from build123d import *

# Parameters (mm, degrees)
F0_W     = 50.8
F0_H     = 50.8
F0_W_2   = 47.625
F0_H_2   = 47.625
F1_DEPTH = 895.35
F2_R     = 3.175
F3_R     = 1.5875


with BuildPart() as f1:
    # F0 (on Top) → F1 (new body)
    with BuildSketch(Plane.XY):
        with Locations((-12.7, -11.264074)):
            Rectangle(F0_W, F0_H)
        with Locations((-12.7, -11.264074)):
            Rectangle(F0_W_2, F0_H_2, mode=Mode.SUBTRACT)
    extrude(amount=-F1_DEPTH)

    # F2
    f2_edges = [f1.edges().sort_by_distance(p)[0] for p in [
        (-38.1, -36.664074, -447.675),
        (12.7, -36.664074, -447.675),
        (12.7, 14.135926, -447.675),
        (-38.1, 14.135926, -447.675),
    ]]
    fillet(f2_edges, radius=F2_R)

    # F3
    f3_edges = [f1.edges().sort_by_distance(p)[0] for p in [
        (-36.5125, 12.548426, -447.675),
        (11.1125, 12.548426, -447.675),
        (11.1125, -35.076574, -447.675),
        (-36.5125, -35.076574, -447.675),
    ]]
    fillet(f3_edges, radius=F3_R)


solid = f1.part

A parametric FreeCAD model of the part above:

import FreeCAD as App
import Part
import Sketcher
from FreeCAD import Vector
Q = App.Units.Quantity


def edges_at(feature, points):
    """Names of the edges that pass closest to the given points."""
    edges = feature.Shape.Edges
    near = lambda p: min(range(len(edges)), key=lambda i: edges[i].distToShape(Part.Vertex(*p))[0])
    return sorted({f"Edge{near(p) + 1}" for p in points})

doc = App.newDocument("Part")
body = doc.addObject("PartDesign::Body", "Body")

# Sketch on XY plane
sketch1 = body.newObject("Sketcher::SketchObject", "Sketch")
sketch1.AttachmentSupport = (doc.getObject("XY_Plane"), [""])
sketch1.MapMode = "FlatFace"
sketch1.addGeometry([
    Part.LineSegment(Vector(-38, 14, 0), Vector(-38, -37, 0)),  # 0
    Part.LineSegment(Vector(-38, -37, 0), Vector(13, -37, 0)),  # 1
    Part.LineSegment(Vector(13, -37, 0), Vector(13, 14, 0)),  # 2
    Part.LineSegment(Vector(13, 14, 0), Vector(-38, 14, 0)),  # 3
    Part.LineSegment(Vector(11, -35, 0), Vector(-37, -35, 0)),  # 4
    Part.LineSegment(Vector(-37, -35, 0), Vector(-37, 13, 0)),  # 5
    Part.LineSegment(Vector(-37, 13, 0), Vector(11, 13, 0)),  # 6
    Part.LineSegment(Vector(11, 13, 0), Vector(11, -35, 0)),  # 7
], False)
sketch1.addConstraint([
    Sketcher.Constraint("Coincident", 0, 2, 1, 1),
    Sketcher.Constraint("Coincident", 1, 2, 2, 1),
    Sketcher.Constraint("Coincident", 2, 2, 3, 1),
    Sketcher.Constraint("Coincident", 3, 2, 0, 1),
    Sketcher.Constraint("Coincident", 4, 2, 5, 1),
    Sketcher.Constraint("Coincident", 5, 2, 6, 1),
    Sketcher.Constraint("Coincident", 6, 2, 7, 1),
    Sketcher.Constraint("Coincident", 7, 2, 4, 1),
    Sketcher.Constraint("Vertical", 0),
    Sketcher.Constraint("Horizontal", 1),
    Sketcher.Constraint("Vertical", 2),
    Sketcher.Constraint("Horizontal", 3),
    Sketcher.Constraint("Horizontal", 4),
    Sketcher.Constraint("Vertical", 5),
    Sketcher.Constraint("Horizontal", 6),
    Sketcher.Constraint("Vertical", 7),
    Sketcher.Constraint("Equal", 3, 0),
    Sketcher.Constraint("Equal", 6, 5),
    Sketcher.Constraint("DistanceX", 1, 1, 1, 2, Q("2 in")),
    Sketcher.Constraint("DistanceX", 0, 2, -1, 1, Q("1.5 in")),
    Sketcher.Constraint("DistanceX", 4, 2, 4, 1, Q("1.875 in")),
    Sketcher.Constraint("DistanceX", 4, 2, -1, 1, Q("1.4375 in")),
    Sketcher.Constraint("DistanceY", 0, 2, 4, 2, Q("0.0625 in")),
    Sketcher.Constraint("DistanceY", 0, 2, -1, 1, 36.664074),
])
pad1 = body.newObject("PartDesign::Pad", "Pad")
pad1.Profile = sketch1
pad1.Length = Q("35.25 in")
pad1.Reversed = True
doc.recompute()

fillet = body.newObject("PartDesign::Fillet", "Fillet")
fillet.Base = (pad1, edges_at(pad1, [
    (-38.1, -36.664, -447.675),
    (12.7, -36.664, -447.675),
    (12.7, 14.136, -447.675),
    (-38.1, 14.136, -447.675),
]))
fillet.Radius = Q("0.125 in")
doc.recompute()

fillet2 = body.newObject("PartDesign::Fillet", "Fillet001")
fillet2.Base = (fillet, edges_at(fillet, [
    (-36.513, 12.548, -447.675),
    (11.113, 12.548, -447.675),
    (11.113, -35.077, -447.675),
    (-36.513, -35.077, -447.675),
]))
fillet2.Radius = Q("0.0625 in")

doc.recompute()
